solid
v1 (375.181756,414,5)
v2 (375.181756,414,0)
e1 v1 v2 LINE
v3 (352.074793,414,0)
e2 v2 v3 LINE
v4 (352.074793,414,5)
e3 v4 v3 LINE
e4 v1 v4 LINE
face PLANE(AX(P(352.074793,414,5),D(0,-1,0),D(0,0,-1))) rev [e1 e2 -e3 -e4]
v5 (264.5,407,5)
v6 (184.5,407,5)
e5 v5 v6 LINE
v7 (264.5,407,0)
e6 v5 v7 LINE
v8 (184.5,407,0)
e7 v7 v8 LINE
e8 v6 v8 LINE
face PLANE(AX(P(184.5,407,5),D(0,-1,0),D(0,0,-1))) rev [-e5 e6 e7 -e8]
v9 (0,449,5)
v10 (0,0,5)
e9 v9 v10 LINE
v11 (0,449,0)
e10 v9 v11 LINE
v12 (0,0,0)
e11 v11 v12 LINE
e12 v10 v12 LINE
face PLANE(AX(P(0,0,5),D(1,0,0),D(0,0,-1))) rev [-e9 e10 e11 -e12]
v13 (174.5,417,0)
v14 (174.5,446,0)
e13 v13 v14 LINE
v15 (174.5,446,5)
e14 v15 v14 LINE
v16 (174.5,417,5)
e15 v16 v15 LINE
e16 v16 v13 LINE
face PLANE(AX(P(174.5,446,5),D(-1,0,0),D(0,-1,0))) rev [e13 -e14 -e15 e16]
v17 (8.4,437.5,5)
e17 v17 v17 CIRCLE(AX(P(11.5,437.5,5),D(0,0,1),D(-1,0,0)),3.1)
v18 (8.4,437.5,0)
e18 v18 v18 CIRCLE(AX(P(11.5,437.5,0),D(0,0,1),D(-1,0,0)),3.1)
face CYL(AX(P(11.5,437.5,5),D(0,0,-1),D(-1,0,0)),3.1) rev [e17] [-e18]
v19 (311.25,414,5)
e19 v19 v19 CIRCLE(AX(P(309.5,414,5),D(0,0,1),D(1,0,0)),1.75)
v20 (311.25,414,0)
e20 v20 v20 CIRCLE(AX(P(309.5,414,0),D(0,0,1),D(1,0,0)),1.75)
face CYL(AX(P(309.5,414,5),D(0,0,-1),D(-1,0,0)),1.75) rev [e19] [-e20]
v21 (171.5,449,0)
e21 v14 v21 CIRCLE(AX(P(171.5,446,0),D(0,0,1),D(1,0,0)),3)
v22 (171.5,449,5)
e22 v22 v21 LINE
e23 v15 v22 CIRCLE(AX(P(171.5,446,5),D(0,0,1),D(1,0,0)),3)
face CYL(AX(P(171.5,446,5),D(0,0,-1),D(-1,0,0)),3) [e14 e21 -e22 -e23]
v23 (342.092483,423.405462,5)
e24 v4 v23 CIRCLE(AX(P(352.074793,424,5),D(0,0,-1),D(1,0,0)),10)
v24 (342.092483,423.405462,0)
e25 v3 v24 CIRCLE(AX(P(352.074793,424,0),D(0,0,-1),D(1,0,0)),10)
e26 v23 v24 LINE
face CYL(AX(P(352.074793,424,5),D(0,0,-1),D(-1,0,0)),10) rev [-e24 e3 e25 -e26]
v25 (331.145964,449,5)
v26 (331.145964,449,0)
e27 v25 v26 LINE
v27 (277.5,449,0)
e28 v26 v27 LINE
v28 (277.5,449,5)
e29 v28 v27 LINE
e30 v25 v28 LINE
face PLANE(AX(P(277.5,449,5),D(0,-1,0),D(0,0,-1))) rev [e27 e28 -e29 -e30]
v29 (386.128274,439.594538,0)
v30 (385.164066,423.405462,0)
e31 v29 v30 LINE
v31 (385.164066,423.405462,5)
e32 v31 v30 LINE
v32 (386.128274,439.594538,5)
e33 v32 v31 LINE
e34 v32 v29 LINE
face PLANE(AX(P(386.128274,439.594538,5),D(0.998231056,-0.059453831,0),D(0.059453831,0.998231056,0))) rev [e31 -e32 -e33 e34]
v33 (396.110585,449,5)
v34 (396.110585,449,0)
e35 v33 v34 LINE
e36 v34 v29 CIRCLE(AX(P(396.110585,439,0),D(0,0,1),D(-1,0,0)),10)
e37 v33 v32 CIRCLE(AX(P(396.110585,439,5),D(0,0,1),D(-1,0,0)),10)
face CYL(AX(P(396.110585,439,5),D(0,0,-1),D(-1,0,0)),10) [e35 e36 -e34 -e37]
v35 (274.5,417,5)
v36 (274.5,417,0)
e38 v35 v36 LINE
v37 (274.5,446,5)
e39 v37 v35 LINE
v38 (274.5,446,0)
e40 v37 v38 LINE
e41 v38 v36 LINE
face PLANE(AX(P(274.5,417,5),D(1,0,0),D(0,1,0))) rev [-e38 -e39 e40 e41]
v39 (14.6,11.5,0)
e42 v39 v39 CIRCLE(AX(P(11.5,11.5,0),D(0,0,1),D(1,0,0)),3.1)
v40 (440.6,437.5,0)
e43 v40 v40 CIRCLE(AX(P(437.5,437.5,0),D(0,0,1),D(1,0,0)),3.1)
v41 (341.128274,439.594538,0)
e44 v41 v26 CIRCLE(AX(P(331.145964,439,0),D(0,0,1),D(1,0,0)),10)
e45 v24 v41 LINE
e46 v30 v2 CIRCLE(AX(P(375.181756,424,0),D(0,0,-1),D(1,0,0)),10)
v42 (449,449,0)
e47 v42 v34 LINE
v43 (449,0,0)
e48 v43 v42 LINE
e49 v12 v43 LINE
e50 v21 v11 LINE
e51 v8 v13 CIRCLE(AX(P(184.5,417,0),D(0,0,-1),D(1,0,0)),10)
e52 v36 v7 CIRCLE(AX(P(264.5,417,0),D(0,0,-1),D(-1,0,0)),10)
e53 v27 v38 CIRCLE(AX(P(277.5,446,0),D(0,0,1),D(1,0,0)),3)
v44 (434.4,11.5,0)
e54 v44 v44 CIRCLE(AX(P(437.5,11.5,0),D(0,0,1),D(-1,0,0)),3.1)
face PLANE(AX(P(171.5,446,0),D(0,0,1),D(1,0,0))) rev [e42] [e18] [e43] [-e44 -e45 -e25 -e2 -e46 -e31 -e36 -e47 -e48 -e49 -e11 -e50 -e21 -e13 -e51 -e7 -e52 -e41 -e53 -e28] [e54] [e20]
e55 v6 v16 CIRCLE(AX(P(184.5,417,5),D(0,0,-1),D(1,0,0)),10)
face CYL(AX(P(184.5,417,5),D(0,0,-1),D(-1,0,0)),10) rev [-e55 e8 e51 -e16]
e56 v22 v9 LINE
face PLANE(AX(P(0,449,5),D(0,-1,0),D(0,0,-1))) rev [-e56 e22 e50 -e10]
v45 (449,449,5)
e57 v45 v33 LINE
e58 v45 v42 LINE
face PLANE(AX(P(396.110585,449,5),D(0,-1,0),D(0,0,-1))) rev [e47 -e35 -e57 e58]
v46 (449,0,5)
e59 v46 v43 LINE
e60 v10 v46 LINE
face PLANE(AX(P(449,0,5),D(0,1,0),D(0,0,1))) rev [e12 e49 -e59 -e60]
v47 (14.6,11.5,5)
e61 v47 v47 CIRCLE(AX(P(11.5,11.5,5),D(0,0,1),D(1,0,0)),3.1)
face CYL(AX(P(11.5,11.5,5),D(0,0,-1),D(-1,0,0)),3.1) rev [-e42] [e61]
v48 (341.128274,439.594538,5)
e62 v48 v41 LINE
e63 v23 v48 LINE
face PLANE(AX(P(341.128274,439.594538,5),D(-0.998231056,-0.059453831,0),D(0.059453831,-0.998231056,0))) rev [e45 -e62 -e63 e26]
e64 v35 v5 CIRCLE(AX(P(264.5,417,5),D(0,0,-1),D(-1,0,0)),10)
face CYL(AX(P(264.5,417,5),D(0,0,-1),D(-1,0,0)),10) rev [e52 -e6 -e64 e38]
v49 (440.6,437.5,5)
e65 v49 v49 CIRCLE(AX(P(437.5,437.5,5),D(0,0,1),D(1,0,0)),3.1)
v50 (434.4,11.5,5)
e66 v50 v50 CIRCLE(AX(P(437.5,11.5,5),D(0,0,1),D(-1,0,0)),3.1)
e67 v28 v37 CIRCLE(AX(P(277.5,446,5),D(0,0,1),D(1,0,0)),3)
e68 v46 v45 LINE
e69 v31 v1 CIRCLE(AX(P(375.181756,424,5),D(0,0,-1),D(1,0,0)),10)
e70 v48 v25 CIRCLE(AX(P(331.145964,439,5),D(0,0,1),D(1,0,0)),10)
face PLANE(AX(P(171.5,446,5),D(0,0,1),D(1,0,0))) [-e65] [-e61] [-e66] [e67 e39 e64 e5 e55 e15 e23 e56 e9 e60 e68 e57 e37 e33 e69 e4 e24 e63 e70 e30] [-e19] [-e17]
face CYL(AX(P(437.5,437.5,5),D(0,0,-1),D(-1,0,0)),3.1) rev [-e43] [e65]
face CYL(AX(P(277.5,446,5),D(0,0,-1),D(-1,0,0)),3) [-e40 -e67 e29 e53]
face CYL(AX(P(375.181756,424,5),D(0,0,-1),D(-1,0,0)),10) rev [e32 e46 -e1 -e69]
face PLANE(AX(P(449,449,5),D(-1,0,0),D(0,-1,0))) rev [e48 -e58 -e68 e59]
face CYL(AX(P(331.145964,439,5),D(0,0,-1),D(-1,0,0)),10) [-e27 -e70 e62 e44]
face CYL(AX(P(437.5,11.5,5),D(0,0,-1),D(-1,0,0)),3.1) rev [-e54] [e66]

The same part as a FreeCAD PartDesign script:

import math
import FreeCAD as App
import Part
import Sketcher
Q = App.Units.Quantity

doc = App.newDocument("Part")
body = doc.addObject("PartDesign::Body", "Body")

# Sketch on XY plane
sketch1 = body.newObject("Sketcher::SketchObject", "Sketch")
sketch1.AttachmentSupport = (doc.getObject("XY_Plane"), [""])
sketch1.MapMode = "FlatFace"
sketch1.addGeometry(Part.LineSegment(App.Vector(0, 449, 0), App.Vector(0, 0, 0)), False)
sketch1.addGeometry(Part.LineSegment(App.Vector(0, 0, 0), App.Vector(449, 0, 0)), False)
sketch1.addGeometry(Part.LineSegment(App.Vector(449, 0, 0), App.Vector(449, 449, 0)), False)
sketch1.addGeometry(Part.LineSegment(App.Vector(449, 449, 0), App.Vector(396.110585, 449, 0)), False)
sketch1.addGeometry(Part.ArcOfCircle(Part.Circle(App.Vector(396.110585, 439, 0), App.Vector(0, 0, 1), 10), math.radians(90), math.radians(176.591536)), False)
sketch1.addGeometry(Part.LineSegment(App.Vector(386.128274, 439.594538, 0), App.Vector(385.164066, 423.405462, 0)), False)
sketch1.addGeometry(Part.ArcOfCircle(Part.Circle(App.Vector(375.181756, 424, 0), App.Vector(0, 0, 1), 10), math.radians(-90), math.radians(-3.408464)), False)
sketch1.addGeometry(Part.LineSegment(App.Vector(375.181756, 414, 0), App.Vector(352.074793, 414, 0)), False)
sketch1.addGeometry(Part.ArcOfCircle(Part.Circle(App.Vector(352.074793, 424, 0), App.Vector(0, 0, 1), 10), math.radians(-176.591536), math.radians(-90)), False)
sketch1.addGeometry(Part.LineSegment(App.Vector(342.092483, 423.405462, 0), App.Vector(341.128274, 439.594538, 0)), False)
sketch1.addGeometry(Part.ArcOfCircle(Part.Circle(App.Vector(331.145964, 439, 0), App.Vector(0, 0, 1), 10), math.radians(3.408464), math.radians(90)), False)
sketch1.addGeometry(Part.LineSegment(App.Vector(331.145964, 449, 0), App.Vector(277.5, 449, 0)), False)
sketch1.addGeometry(Part.ArcOfCircle(Part.Circle(App.Vector(277.5, 446, 0), App.Vector(0, 0, 1), 3), math.radians(90), math.radians(180)), False)
sketch1.addGeometry(Part.LineSegment(App.Vector(274.5, 446, 0), App.Vector(274.5, 417, 0)), False)
sketch1.addGeometry(Part.ArcOfCircle(Part.Circle(App.Vector(264.5, 417, 0), App.Vector(0, 0, 1), 10), math.radians(-90), math.radians(0)), False)
sketch1.addGeometry(Part.LineSegment(App.Vector(264.5, 407, 0), App.Vector(184.5, 407, 0)), False)
sketch1.addGeometry(Part.ArcOfCircle(Part.Circle(App.Vector(184.5, 417, 0), App.Vector(0, 0, 1), 10), math.radians(180), math.radians(270)), False)
sketch1.addGeometry(Part.LineSegment(App.Vector(174.5, 417, 0), App.Vector(174.5, 446, 0)), False)
sketch1.addGeometry(Part.ArcOfCircle(Part.Circle(App.Vector(171.5, 446, 0), App.Vector(0, 0, 1), 3), math.radians(0), math.radians(90)), False)
sketch1.addGeometry(Part.LineSegment(App.Vector(171.5, 449, 0), App.Vector(0, 449, 0)), False)
sketch1.addGeometry(Part.Circle(App.Vector(437.5, 11.5, 0), App.Vector(0, 0, 1), 3.1), False)
sketch1.addGeometry(Part.Circle(App.Vector(11.5, 11.5, 0), App.Vector(0, 0, 1), 3.1), False)
sketch1.addGeometry(Part.Circle(App.Vector(437.5, 437.5, 0), App.Vector(0, 0, 1), 3.1), False)
sketch1.addGeometry(Part.Circle(App.Vector(309.5, 414, 0), App.Vector(0, 0, 1), 1.75), False)
sketch1.addGeometry(Part.Circle(App.Vector(11.5, 437.5, 0), App.Vector(0, 0, 1), 3.1), False)
sketch1.addConstraint(Sketcher.Constraint("Coincident", 0, 2, 1, 1))
sketch1.addConstraint(Sketcher.Constraint("Coincident", 1, 2, 2, 1))
sketch1.addConstraint(Sketcher.Constraint("Coincident", 2, 2, 3, 1))
sketch1.addConstraint(Sketcher.Constraint("Tangent", 3, 2, 4, 1))
sketch1.addConstraint(Sketcher.Constraint("Tangent", 4, 2, 5, 1))
sketch1.addConstraint(Sketcher.Constraint("Tangent", 5, 2, 6, 2))
sketch1.addConstraint(Sketcher.Constraint("Tangent", 6, 1, 7, 1))
sketch1.addConstraint(Sketcher.Constraint("Tangent", 7, 2, 8, 2))
sketch1.addConstraint(Sketcher.Constraint("Tangent", 8, 1, 9, 1))
sketch1.addConstraint(Sketcher.Constraint("Tangent", 9, 2, 10, 1))
sketch1.addConstraint(Sketcher.Constraint("Tangent", 10, 2, 11, 1))
sketch1.addConstraint(Sketcher.Constraint("Tangent", 11, 2, 12, 1))
sketch1.addConstraint(Sketcher.Constraint("Tangent", 12, 2, 13, 1))
sketch1.addConstraint(Sketcher.Constraint("Tangent", 13, 2, 14, 2))
sketch1.addConstraint(Sketcher.Constraint("Tangent", 14, 1, 15, 1))
sketch1.addConstraint(Sketcher.Constraint("Tangent", 15, 2, 16, 2))
sketch1.addConstraint(Sketcher.Constraint("Tangent", 16, 1, 17, 1))
sketch1.addConstraint(Sketcher.Constraint("Tangent", 17, 2, 18, 1))
sketch1.addConstraint(Sketcher.Constraint("Tangent", 18, 2, 19, 1))
sketch1.addConstraint(Sketcher.Constraint("Coincident", 19, 2, 0, 1))
sketch1.addConstraint(Sketcher.Constraint("Vertical", 0))
sketch1.addConstraint(Sketcher.Constraint("Horizontal", 1))
sketch1.addConstraint(Sketcher.Constraint("Vertical", 2))
sketch1.addConstraint(Sketcher.Constraint("Horizontal", 3))
sketch1.addConstraint(Sketcher.Constraint("Horizontal", 7))
sketch1.addConstraint(Sketcher.Constraint("Horizontal", 11))
sketch1.addConstraint(Sketcher.Constraint("Vertical", 13))
sketch1.addConstraint(Sketcher.Constraint("Horizontal", 15))
sketch1.addConstraint(Sketcher.Constraint("Vertical", 17))
sketch1.addConstraint(Sketcher.Constraint("Horizontal", 19))
sketch1.addConstraint(Sketcher.Constraint("Coincident", 0, 2, -1, 1))
sketch1.addConstraint(Sketcher.Constraint("Equal", 4, 6))
sketch1.addConstraint(Sketcher.Constraint("Equal", 6, 8))
sketch1.addConstraint(Sketcher.Constraint("Equal", 8, 10))
sketch1.addConstraint(Sketcher.Constraint("Equal", 10, 14))
sketch1.addConstraint(Sketcher.Constraint("Equal", 14, 16))
sketch1.addConstraint(Sketcher.Constraint("Equal", 12, 18))
sketch1.addConstraint(Sketcher.Constraint("Equal", 20, 21))
sketch1.addConstraint(Sketcher.Constraint("Equal", 21, 22))
sketch1.addConstraint(Sketcher.Constraint("Equal", 22, 24))
sketch1.addConstraint(Sketcher.Constraint("Horizontal", 4, 3, 10, 3))
sketch1.addConstraint(Sketcher.Constraint("Horizontal", 12, 3, 18, 3))
sketch1.addConstraint(Sketcher.Constraint("Horizontal", 20, 3, 21, 3))
sketch1.addConstraint(Sketcher.Constraint("Horizontal", 22, 3, 24, 3))
sketch1.addConstraint(Sketcher.Constraint("Horizontal", 23, 3, 6, 1))
sketch1.addConstraint(Sketcher.Constraint("Horizontal", 5, 2, 8, 1))
sketch1.addConstraint(Sketcher.Constraint("Vertical", 20, 3, 22, 3))
sketch1.addConstraint(Sketcher.Constraint("Vertical", 21, 3, 24, 3))
sketch1.addConstraint(Sketcher.Constraint("Equal", 1, 0))
sketch1.addConstraint(Sketcher.Constraint("Radius", 4, Q("10 mm")))
sketch1.addConstraint(Sketcher.Constraint("Radius", 12, Q("3 mm")))
sketch1.addConstraint(Sketcher.Constraint("Diameter", 20, Q("6.2 mm")))
sketch1.addConstraint(Sketcher.Constraint("Diameter", 23, Q("3.5 mm")))
sketch1.addConstraint(Sketcher.Constraint("DistanceX", 1, 1, 1, 2, Q("449 mm")))
sketch1.addConstraint(Sketcher.Constraint("DistanceX", 15, 2, 15, 1, Q("80 mm")))
sketch1.addConstraint(Sketcher.Constraint("DistanceY", 13, 2, 13, 1, Q("29 mm")))
sketch1.addConstraint(Sketcher.Constraint("DistanceX", 19, 2, 19, 1, Q("171.5 mm")))
sketch1.addConstraint(Sketcher.Constraint("DistanceY", -1, 1, 6, 3, Q("424 mm")))
sketch1.addConstraint(Sketcher.Constraint("DistanceX", 14, 3, 20, 3, Q("173 mm")))
sketch1.addConstraint(Sketcher.Constraint("DistanceX", 21, 3, 20, 3, Q("426 mm")))
sketch1.addConstraint(Sketcher.Constraint("DistanceX", 14, 3, 23, 3, Q("45 mm")))
sketch1.addConstraint(Sketcher.Constraint("DistanceY", -1, 1, 20, 3, Q("11.5 mm")))
sketch1.addConstraint(Sketcher.Constraint("DistanceY", -1, 1, 22, 3, Q("437.5 mm")))
sketch1.addConstraint(Sketcher.Constraint("DistanceX", 3, 2, 3, 1, Q("52.889415 mm")))
sketch1.addConstraint(Sketcher.Constraint("DistanceX", 7, 2, 7, 1, Q("23.106962 mm")))
sketch1.addConstraint(Sketcher.Constraint("DistanceX", 11, 2, 11, 1, Q("53.645964 mm")))
pad1 = body.newObject("PartDesign::Pad", "Pad")
pad1.Profile = sketch1
pad1.Length = 5

doc.recompute()
